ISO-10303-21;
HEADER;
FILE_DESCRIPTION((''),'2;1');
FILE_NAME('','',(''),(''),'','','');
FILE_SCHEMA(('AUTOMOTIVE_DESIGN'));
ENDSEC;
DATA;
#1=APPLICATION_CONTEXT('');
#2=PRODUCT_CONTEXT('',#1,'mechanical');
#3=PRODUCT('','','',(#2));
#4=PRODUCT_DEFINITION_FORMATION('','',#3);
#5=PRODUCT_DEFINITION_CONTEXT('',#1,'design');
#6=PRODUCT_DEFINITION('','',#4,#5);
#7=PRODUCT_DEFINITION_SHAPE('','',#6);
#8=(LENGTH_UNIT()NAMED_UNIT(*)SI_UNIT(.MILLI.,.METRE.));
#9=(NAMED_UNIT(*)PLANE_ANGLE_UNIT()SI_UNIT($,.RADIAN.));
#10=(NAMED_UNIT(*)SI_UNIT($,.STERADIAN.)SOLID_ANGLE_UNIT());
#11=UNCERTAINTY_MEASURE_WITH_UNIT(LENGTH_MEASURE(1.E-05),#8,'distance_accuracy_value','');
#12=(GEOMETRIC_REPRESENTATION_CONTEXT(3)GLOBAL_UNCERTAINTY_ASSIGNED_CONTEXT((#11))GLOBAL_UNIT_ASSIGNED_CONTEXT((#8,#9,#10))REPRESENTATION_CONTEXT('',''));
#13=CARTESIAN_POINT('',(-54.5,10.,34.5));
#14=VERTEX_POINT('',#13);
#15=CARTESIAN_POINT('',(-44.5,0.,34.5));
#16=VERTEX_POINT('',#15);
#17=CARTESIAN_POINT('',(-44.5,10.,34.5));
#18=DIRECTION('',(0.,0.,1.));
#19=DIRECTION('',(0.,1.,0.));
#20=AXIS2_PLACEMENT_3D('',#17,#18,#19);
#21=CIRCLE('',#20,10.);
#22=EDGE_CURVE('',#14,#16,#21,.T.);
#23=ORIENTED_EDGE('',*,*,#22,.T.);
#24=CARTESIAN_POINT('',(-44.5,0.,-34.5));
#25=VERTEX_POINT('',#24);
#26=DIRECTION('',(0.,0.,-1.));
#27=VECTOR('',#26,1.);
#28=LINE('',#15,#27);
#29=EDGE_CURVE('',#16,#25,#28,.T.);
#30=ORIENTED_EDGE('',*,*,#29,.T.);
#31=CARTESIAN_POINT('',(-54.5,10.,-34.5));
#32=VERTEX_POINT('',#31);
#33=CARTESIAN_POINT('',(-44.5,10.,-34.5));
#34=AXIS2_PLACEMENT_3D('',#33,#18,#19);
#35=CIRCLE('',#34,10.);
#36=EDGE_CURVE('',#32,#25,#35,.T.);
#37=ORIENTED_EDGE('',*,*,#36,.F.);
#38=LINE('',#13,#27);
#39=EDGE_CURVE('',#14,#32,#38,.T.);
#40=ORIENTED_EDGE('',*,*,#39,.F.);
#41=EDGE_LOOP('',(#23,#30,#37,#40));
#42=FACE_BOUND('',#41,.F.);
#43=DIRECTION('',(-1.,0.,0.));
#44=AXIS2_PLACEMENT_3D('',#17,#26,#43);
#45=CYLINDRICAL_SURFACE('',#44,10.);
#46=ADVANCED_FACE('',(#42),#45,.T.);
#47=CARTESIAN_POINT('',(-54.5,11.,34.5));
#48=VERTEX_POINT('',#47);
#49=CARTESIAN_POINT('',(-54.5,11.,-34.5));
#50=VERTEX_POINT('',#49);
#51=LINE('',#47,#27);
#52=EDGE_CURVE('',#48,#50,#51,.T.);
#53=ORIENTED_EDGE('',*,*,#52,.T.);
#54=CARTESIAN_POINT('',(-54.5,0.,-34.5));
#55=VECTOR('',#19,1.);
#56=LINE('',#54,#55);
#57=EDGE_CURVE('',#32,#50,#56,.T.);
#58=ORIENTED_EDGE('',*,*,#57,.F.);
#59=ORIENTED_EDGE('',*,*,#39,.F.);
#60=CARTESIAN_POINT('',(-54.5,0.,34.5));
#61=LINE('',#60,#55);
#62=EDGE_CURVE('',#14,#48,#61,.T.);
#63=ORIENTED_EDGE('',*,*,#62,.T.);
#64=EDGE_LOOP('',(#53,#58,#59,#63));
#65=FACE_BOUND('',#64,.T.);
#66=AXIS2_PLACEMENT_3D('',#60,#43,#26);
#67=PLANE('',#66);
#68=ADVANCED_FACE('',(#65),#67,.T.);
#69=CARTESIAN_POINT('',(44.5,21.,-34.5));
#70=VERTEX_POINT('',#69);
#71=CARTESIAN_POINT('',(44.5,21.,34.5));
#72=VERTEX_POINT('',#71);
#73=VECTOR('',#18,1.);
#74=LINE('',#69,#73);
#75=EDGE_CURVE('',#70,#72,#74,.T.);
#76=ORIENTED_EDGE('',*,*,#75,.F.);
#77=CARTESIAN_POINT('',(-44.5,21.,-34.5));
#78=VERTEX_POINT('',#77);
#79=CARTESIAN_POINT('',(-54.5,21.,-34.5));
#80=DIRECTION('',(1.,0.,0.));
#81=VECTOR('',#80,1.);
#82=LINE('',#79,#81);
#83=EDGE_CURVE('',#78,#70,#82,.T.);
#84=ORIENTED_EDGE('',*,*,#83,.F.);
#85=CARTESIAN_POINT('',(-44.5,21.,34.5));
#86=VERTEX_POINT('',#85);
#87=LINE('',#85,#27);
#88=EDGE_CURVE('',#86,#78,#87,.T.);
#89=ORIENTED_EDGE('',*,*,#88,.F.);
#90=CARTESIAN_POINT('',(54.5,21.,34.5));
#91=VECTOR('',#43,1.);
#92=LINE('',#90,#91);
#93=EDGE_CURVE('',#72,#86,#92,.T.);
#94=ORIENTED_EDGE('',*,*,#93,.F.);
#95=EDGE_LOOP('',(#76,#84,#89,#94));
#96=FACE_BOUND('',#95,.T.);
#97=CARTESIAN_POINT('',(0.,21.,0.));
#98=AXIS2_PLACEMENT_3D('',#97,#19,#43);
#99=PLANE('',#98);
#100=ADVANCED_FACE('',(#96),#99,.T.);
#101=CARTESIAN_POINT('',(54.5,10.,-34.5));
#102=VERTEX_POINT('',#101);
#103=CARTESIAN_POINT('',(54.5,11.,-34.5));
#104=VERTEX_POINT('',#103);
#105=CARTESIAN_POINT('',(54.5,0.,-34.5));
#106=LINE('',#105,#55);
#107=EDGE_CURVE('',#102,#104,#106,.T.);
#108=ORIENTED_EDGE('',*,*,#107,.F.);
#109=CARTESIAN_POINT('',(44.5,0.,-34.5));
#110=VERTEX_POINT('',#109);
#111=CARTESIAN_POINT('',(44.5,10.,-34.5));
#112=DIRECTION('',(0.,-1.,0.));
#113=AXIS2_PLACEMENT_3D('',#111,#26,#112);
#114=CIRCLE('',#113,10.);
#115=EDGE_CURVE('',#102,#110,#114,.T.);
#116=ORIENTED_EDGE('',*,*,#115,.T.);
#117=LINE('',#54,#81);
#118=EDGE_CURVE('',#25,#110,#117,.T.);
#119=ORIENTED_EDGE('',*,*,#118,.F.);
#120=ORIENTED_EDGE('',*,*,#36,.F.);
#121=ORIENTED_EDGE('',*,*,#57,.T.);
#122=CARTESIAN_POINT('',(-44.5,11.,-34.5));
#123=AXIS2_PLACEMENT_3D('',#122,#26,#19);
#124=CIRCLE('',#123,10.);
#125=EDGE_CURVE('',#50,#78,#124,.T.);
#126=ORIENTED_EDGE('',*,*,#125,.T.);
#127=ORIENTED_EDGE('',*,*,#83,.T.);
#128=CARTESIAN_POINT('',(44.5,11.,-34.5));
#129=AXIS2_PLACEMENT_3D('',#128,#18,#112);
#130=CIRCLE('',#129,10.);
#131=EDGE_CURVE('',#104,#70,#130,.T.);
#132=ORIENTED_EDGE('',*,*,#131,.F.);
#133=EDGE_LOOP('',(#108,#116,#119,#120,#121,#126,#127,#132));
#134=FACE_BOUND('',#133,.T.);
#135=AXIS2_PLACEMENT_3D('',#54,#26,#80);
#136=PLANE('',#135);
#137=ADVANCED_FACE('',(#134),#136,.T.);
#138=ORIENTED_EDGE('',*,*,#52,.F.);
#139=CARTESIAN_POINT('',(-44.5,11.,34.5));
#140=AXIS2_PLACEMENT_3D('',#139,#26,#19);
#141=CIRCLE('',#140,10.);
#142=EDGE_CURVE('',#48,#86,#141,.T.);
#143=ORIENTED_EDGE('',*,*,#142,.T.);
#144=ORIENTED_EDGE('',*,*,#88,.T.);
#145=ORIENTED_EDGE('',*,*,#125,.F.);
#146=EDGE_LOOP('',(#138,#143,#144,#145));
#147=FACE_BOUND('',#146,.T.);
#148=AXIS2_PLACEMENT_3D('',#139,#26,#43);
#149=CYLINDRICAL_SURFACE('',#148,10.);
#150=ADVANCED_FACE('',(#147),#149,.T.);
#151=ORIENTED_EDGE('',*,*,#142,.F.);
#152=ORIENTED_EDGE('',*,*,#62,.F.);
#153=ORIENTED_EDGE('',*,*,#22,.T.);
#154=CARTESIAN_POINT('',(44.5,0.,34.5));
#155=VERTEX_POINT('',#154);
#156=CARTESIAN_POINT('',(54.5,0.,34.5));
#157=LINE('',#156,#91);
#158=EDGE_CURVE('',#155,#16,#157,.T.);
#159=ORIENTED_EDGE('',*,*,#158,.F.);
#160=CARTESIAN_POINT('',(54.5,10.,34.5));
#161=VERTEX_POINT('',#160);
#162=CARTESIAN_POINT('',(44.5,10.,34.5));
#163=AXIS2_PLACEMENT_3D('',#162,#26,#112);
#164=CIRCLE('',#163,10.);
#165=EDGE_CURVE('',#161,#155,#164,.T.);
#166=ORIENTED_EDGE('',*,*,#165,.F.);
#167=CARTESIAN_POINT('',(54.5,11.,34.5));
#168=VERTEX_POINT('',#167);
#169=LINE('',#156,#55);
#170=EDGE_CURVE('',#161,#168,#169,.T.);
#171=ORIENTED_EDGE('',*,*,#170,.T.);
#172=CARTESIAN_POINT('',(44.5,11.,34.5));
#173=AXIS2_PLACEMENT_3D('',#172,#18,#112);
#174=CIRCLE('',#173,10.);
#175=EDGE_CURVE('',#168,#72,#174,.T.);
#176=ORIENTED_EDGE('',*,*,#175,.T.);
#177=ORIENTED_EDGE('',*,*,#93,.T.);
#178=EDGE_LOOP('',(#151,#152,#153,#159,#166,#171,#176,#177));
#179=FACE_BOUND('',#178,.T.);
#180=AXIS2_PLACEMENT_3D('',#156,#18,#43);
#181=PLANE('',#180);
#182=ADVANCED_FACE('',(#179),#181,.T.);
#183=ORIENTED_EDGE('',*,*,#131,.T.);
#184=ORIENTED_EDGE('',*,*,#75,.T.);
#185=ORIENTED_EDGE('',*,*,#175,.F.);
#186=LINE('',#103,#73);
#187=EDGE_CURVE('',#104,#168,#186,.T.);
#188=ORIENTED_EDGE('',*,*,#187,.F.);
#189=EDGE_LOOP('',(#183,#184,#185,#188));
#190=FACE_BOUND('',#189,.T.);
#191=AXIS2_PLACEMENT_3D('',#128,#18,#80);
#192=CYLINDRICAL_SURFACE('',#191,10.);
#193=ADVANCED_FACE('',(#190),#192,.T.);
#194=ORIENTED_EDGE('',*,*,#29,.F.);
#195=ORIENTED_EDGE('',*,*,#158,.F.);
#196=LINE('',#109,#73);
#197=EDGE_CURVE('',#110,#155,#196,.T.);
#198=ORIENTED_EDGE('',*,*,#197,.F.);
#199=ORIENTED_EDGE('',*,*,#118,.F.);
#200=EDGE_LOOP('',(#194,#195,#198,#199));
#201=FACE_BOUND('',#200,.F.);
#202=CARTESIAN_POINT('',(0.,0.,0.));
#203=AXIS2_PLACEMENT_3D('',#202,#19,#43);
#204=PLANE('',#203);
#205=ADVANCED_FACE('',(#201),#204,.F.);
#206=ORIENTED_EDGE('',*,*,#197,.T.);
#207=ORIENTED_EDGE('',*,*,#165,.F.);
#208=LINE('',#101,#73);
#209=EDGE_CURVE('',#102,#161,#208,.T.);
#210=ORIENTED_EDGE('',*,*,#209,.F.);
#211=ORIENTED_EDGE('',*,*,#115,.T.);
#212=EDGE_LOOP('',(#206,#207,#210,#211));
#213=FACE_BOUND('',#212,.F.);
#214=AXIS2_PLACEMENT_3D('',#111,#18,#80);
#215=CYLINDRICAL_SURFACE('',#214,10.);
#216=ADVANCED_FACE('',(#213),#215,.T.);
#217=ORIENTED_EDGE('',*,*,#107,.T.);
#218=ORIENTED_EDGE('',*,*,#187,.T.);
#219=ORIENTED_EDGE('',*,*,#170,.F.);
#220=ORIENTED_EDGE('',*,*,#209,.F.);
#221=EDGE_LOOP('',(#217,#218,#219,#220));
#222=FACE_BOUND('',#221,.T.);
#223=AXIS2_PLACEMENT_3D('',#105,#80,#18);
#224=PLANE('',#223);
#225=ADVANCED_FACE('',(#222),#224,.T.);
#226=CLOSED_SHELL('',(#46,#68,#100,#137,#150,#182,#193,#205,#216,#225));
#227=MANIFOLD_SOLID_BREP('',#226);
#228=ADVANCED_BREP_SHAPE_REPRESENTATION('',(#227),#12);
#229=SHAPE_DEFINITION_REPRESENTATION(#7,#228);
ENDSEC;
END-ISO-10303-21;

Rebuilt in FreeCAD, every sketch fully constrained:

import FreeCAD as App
import Part
import Sketcher


def edges_at(feature, points):
    """Names of the edges that pass closest to the given points."""
    edges = feature.Shape.Edges
    near = lambda p: min(range(len(edges)), key=lambda i: edges[i].distToShape(Part.Vertex(*p))[0])
    return sorted({f"Edge{near(p) + 1}" for p in points})

doc = App.newDocument("Part")
params = doc.addObject("Spreadsheet::Sheet", "Params")
for row, (alias, value) in enumerate([
    ("sketch1_width", "109 mm"),
    ("sketch1_height", "69 mm"),
    ("pad1_length", "21 mm"),
    ("fillet_radius", "10 mm"),
], start=1):
    params.set(f"A{row}", alias)
    params.set(f"B{row}", "=" + value)
    params.setAlias(f"B{row}", alias)

body = doc.addObject("PartDesign::Body", "Body")

sketch1 = body.newObject("Sketcher::SketchObject", "Sketch")
sketch1.AttachmentSupport = (doc.getObject("XZ_Plane"), [""])
sketch1.MapMode = "FlatFace"
sketch1.addGeometry([
    Part.LineSegment(App.Vector(-54, 34, 0), App.Vector(54, 34, 0)),
    Part.LineSegment(App.Vector(54, 34, 0), App.Vector(54, -34, 0)),
    Part.LineSegment(App.Vector(54, -34, 0), App.Vector(-54, -34, 0)),
    Part.LineSegment(App.Vector(-54, -34, 0), App.Vector(-54, 34, 0)),
], False)
sketch1.addConstraint([
    Sketcher.Constraint("Coincident", 0, 2, 1, 1),
    Sketcher.Constraint("Coincident", 1, 2, 2, 1),
    Sketcher.Constraint("Coincident", 2, 2, 3, 1),
    Sketcher.Constraint("Coincident", 3, 2, 0, 1),
    Sketcher.Constraint("Horizontal", 0),
    Sketcher.Constraint("Vertical", 1),
    Sketcher.Constraint("Horizontal", 2),
    Sketcher.Constraint("Vertical", 3),
    Sketcher.Constraint("Symmetric", 0, 2, 2, 2, -1, 1),
    Sketcher.Constraint("DistanceX", 0, 1, 0, 2, 109.0),
    Sketcher.Constraint("DistanceY", 1, 2, 1, 1, 69.0),
])
sketch1.setExpression("Constraints[9]", "Params.sketch1_width")
sketch1.setExpression("Constraints[10]", "Params.sketch1_height")
pad1 = body.newObject("PartDesign::Pad", "Pad")
pad1.Profile = sketch1
pad1.setExpression("Length", "Params.pad1_length")
pad1.Reversed = True
doc.recompute()

fillet = body.newObject("PartDesign::Fillet", "Fillet")
fillet.Base = (pad1, edges_at(pad1, [
    (54.5, 21, 0),
    (54.5, 0, 0),
    (-54.5, 21, 0),
    (-54.5, 0, 0),
]))
fillet.setExpression("Radius", "Params.fillet_radius")

doc.recompute()
